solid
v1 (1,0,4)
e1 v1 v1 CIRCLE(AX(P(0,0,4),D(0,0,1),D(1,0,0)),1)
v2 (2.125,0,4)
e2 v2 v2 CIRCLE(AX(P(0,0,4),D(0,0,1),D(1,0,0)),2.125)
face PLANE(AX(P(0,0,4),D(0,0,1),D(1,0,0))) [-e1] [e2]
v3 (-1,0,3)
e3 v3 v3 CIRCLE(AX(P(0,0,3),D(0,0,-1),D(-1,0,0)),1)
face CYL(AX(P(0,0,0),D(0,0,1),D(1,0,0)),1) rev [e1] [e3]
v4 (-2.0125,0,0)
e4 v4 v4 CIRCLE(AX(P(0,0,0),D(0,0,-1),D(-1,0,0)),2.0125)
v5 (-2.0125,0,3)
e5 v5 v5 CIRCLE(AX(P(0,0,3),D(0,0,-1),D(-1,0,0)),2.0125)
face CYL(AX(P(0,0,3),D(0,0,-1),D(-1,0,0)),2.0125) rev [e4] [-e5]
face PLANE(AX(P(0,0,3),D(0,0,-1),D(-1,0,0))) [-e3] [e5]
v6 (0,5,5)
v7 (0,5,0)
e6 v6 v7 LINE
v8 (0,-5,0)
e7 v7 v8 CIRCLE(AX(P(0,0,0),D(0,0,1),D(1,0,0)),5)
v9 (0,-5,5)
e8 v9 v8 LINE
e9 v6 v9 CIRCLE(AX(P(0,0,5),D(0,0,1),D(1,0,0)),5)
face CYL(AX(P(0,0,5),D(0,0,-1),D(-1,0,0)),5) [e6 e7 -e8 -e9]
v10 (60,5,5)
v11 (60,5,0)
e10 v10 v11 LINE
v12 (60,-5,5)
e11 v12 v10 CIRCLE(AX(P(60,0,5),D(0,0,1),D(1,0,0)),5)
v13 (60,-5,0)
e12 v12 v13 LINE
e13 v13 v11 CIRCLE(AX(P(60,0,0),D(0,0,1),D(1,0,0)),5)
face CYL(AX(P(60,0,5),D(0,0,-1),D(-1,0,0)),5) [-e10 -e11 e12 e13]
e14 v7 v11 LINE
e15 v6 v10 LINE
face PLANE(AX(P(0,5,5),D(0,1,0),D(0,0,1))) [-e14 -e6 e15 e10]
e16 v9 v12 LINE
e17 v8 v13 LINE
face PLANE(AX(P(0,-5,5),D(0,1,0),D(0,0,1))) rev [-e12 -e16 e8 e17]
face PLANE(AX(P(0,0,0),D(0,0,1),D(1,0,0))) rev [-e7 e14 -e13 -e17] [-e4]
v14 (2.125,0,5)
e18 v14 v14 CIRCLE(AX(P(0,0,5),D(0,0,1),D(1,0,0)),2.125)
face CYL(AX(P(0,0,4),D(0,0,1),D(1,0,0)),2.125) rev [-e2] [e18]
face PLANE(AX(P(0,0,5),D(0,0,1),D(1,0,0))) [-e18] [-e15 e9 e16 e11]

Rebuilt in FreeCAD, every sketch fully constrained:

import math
import FreeCAD as App
import Part
import Sketcher
Q = App.Units.Quantity

doc = App.newDocument("Part")
body = doc.addObject("PartDesign::Body", "Body")

# Sketch on XY plane
sketch1 = body.newObject("Sketcher::SketchObject", "Sketch")
sketch1.AttachmentSupport = (doc.getObject("XY_Plane"), [""])
sketch1.MapMode = "FlatFace"
sketch1.addGeometry([
    Part.LineSegment(App.Vector(60, 5, 0), App.Vector(0, 5, 0)),
    Part.ArcOfCircle(Part.Circle(App.Vector(0, 0, 0), App.Vector(0, 0, 1), 5), math.radians(90), math.radians(270)),
    Part.LineSegment(App.Vector(0, -5, 0), App.Vector(60, -5, 0)),
    Part.ArcOfCircle(Part.Circle(App.Vector(60, 0, 0), App.Vector(0, 0, 1), 5), math.radians(-90), math.radians(90)),
], False)
sketch1.addConstraint([
    Sketcher.Constraint("Tangent", 0, 2, 1, 1),
    Sketcher.Constraint("Tangent", 1, 2, 2, 1),
    Sketcher.Constraint("Tangent", 2, 2, 3, 1),
    Sketcher.Constraint("Tangent", 3, 2, 0, 1),
    Sketcher.Constraint("Horizontal", 0),
    Sketcher.Constraint("Horizontal", 2),
    Sketcher.Constraint("Coincident", 1, 3, -1, 1),
    Sketcher.Constraint("Radius", 1, Q("5 mm")),
    Sketcher.Constraint("DistanceX", 0, 2, 0, 1, Q("60 mm")),
])
pad1 = body.newObject("PartDesign::Pad", "Pad")
pad1.Profile = sketch1
pad1.Length = 5

# Sketch on XY plane
sketch2 = body.newObject("Sketcher::SketchObject", "Sketch001")
sketch2.AttachmentSupport = (doc.getObject("XY_Plane"), [""])
sketch2.MapMode = "FlatFace"
sketch2.addGeometry(Part.Circle(App.Vector(0, 0, 0), App.Vector(0, 0, 1), 2), False)
sketch2.addConstraint([
    Sketcher.Constraint("Coincident", 0, 3, -1, 1),
    Sketcher.Constraint("Diameter", 0, Q("4.025 mm")),
])
pocket1 = body.newObject("PartDesign::Pocket", "Pocket")
pocket1.Profile = sketch2
pocket1.Length = 3
pocket1.Reversed = True

# Sketch on XY plane
sketch3 = body.newObject("Sketcher::SketchObject", "Sketch002")
sketch3.AttachmentSupport = (doc.getObject("XY_Plane"), [""])
sketch3.MapMode = "FlatFace"
sketch3.AttachmentOffset = App.Placement(App.Vector(0, 0, 5), App.Rotation())
sketch3.addGeometry(Part.Circle(App.Vector(0, 0, 0), App.Vector(0, 0, 1), 2.1), False)
sketch3.addConstraint([
    Sketcher.Constraint("Coincident", 0, 3, -1, 1),
    Sketcher.Constraint("Diameter", 0, Q("4.25 mm")),
])
pocket2 = body.newObject("PartDesign::Pocket", "Pocket001")
pocket2.Profile = sketch3
pocket2.Length = 1

# Sketch on XY plane
sketch4 = body.newObject("Sketcher::SketchObject", "Sketch003")
sketch4.AttachmentSupport = (doc.getObject("XY_Plane"), [""])
sketch4.MapMode = "FlatFace"
sketch4.AttachmentOffset = App.Placement(App.Vector(0, 0, 4), App.Rotation())
sketch4.addGeometry(Part.Circle(App.Vector(0, 0, 0), App.Vector(0, 0, 1), 1), False)
sketch4.addConstraint([
    Sketcher.Constraint("Coincident", 0, 3, -1, 1),
    Sketcher.Constraint("Diameter", 0, Q("2 mm")),
])
pocket3 = body.newObject("PartDesign::Pocket", "Pocket002")
pocket3.Profile = sketch4
pocket3.Type = "ThroughAll"

doc.recompute()
